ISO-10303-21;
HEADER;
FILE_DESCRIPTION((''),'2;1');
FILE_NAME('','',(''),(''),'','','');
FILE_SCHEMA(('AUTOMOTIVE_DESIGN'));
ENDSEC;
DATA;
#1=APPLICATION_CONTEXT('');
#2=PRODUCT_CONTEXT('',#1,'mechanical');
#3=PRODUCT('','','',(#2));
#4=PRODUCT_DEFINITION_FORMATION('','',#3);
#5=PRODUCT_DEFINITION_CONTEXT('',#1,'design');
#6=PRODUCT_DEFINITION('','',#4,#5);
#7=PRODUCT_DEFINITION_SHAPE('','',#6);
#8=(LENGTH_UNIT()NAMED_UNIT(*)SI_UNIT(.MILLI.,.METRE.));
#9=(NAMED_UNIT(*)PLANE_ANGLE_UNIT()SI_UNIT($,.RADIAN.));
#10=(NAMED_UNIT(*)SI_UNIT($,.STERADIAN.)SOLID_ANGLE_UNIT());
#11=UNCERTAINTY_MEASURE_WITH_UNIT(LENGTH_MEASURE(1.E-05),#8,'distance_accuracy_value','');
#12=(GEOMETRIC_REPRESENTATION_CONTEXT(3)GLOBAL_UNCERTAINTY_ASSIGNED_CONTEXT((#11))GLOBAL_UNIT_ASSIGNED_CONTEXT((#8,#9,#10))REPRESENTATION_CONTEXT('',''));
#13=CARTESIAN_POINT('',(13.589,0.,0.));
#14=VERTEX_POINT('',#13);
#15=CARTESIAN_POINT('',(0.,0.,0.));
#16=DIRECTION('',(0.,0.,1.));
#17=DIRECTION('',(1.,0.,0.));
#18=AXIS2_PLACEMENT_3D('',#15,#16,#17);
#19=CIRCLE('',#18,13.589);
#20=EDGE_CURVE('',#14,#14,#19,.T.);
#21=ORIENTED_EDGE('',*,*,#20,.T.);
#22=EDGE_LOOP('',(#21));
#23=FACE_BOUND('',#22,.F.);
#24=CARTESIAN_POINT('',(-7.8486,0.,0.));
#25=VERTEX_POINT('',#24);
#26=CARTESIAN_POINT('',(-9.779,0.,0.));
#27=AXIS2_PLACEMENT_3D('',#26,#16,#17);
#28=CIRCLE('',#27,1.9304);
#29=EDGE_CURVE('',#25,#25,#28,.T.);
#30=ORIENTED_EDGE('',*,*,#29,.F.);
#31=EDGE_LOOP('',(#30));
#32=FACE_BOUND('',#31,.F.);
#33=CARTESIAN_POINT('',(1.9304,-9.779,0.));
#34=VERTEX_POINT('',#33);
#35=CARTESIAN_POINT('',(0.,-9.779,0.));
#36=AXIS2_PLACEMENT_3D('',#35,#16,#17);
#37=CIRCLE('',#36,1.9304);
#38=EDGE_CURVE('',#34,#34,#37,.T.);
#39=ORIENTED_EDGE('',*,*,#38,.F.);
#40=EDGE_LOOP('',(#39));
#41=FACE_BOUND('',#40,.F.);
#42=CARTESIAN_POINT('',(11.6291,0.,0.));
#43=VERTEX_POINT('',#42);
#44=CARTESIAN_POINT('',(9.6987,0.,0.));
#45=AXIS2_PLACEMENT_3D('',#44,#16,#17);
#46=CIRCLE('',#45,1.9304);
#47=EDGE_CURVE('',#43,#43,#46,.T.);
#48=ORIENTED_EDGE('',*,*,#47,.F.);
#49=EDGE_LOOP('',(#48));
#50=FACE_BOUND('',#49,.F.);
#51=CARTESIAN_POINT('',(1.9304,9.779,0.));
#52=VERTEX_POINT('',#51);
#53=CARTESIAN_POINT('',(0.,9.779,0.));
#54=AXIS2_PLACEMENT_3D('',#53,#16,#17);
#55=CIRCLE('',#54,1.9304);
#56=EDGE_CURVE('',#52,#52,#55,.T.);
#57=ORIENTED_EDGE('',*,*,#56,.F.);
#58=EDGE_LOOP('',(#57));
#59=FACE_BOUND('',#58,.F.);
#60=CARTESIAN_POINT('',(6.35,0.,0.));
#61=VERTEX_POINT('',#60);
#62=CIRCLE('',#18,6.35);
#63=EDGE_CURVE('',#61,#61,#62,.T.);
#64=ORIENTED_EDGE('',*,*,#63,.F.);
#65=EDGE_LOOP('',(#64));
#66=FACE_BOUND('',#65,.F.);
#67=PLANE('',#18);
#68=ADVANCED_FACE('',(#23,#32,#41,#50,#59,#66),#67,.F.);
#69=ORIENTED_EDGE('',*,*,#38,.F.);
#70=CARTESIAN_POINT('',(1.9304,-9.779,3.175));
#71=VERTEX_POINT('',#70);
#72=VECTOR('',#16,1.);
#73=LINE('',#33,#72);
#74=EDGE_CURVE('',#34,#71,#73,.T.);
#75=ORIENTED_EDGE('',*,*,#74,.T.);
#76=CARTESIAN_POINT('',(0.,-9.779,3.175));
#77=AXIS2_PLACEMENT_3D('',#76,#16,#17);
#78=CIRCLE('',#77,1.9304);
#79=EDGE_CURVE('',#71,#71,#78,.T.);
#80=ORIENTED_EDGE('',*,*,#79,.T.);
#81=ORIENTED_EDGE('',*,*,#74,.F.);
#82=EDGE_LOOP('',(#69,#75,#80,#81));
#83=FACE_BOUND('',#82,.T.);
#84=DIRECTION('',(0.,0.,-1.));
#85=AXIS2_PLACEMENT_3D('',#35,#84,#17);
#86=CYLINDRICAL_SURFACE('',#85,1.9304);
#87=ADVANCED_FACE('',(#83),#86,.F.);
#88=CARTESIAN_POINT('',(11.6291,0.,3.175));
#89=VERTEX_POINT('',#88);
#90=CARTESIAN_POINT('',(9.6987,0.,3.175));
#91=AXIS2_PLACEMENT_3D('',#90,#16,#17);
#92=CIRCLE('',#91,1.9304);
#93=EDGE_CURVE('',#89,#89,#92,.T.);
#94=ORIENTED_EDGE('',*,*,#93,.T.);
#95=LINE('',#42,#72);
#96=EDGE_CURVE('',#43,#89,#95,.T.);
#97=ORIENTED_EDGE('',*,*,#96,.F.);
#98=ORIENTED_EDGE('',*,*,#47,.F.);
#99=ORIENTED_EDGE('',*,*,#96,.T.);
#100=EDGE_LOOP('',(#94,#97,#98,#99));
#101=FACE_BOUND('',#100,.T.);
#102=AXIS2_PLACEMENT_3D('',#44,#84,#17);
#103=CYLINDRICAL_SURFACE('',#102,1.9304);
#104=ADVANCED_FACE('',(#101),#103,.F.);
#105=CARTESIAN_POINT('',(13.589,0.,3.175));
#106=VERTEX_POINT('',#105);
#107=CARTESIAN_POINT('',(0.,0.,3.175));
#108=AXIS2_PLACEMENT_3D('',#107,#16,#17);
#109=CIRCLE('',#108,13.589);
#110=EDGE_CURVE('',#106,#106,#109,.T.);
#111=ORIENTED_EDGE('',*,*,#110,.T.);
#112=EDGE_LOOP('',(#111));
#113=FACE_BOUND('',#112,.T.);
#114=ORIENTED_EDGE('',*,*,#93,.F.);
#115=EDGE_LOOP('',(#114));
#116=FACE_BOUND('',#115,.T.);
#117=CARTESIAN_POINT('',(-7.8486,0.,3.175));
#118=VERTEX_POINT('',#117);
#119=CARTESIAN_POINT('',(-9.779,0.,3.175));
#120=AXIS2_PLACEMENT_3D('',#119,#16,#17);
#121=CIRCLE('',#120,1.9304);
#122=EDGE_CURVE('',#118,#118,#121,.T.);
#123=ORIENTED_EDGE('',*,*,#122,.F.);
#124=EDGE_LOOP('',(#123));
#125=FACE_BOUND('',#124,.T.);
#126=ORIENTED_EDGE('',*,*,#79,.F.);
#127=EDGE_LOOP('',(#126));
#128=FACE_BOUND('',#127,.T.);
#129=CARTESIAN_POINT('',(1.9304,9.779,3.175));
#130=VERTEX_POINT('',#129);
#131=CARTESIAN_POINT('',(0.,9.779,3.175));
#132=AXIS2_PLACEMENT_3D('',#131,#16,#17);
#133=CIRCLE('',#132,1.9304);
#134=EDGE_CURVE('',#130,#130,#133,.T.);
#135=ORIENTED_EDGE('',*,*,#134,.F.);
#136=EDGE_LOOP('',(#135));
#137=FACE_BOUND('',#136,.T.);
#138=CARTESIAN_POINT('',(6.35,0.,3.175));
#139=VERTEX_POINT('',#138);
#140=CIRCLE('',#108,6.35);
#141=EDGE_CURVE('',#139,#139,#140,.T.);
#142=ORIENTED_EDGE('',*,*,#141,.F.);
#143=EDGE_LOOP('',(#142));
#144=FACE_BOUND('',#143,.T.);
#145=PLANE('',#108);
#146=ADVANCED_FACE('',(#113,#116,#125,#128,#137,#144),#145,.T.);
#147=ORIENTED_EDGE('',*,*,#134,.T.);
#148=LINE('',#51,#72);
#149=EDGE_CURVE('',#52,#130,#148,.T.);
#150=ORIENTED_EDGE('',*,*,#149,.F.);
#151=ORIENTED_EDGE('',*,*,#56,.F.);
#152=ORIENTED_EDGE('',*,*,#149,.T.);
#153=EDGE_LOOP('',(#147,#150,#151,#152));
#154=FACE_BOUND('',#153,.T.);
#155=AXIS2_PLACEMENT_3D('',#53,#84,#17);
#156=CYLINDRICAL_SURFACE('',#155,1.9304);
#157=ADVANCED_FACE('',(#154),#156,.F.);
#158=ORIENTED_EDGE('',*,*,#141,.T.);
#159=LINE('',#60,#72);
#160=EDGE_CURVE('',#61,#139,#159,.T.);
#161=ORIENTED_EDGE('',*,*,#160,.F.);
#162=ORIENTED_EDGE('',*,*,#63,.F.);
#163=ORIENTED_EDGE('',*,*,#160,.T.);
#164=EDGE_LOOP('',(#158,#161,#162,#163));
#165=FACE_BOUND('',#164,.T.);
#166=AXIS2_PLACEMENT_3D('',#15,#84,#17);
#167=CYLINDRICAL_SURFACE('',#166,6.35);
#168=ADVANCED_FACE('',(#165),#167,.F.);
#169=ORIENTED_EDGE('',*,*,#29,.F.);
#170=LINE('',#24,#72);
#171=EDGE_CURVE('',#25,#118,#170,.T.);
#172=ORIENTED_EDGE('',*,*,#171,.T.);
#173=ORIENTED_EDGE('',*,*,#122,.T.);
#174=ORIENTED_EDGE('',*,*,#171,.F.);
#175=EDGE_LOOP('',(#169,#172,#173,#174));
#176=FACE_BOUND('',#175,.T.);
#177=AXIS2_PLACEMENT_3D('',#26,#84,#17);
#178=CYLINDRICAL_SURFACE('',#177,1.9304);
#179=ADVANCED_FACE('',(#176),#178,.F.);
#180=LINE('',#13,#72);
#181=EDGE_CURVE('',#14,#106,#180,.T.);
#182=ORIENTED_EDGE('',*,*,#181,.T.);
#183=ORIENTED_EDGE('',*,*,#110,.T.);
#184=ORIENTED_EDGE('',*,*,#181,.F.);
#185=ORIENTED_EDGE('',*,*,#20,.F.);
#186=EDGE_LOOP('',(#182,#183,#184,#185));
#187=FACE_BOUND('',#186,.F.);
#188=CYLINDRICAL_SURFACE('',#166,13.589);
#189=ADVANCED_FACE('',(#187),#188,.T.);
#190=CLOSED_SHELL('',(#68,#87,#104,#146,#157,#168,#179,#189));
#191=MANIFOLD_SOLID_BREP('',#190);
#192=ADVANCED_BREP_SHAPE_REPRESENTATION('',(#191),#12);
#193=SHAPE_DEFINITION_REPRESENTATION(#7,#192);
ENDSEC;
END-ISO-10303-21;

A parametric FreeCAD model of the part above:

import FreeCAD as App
import Part
import Sketcher
Q = App.Units.Quantity

doc = App.newDocument("Part")
body = doc.addObject("PartDesign::Body", "Body")

sketch1 = body.newObject("Sketcher::SketchObject", "Sketch")
sketch1.AttachmentSupport = (doc.getObject("XY_Plane"), [""])
sketch1.MapMode = "FlatFace"
sketch1.addGeometry(Part.Circle(App.Vector(0, 0, 0), App.Vector(0, 0, 1), 13.6), False)
sketch1.addGeometry(Part.Circle(App.Vector(0, -9.8, 0), App.Vector(0, 0, 1), 1.9), False)
sketch1.addGeometry(Part.Circle(App.Vector(-9.8, 0, 0), App.Vector(0, 0, 1), 1.9), False)
sketch1.addGeometry(Part.Circle(App.Vector(0, 0, 0), App.Vector(0, 0, 1), 6.3), False)
sketch1.addGeometry(Part.Circle(App.Vector(9.7, 0, 0), App.Vector(0, 0, 1), 1.9), False)
sketch1.addGeometry(Part.Circle(App.Vector(0, 9.8, 0), App.Vector(0, 0, 1), 1.9), False)
sketch1.addConstraint(Sketcher.Constraint("Coincident", 0, 3, -1, 1))
sketch1.addConstraint(Sketcher.Constraint("Coincident", 3, 3, -1, 1))
sketch1.addConstraint(Sketcher.Constraint("Equal", 1, 2))
sketch1.addConstraint(Sketcher.Constraint("Equal", 2, 4))
sketch1.addConstraint(Sketcher.Constraint("Equal", 4, 5))
sketch1.addConstraint(Sketcher.Constraint("Symmetric", 1, 3, 5, 3, -1, 1))
sketch1.addConstraint(Sketcher.Constraint("PointOnObject", 1, 3, -2))
sketch1.addConstraint(Sketcher.Constraint("PointOnObject", 2, 3, -1))
sketch1.addConstraint(Sketcher.Constraint("PointOnObject", 4, 3, -1))
sketch1.addConstraint(Sketcher.Constraint("Diameter", 3, Q("0.5 in")))
sketch1.addConstraint(Sketcher.Constraint("Diameter", 0, Q("1.07 in")))
sketch1.addConstraint(Sketcher.Constraint("Diameter", 1, Q("0.152 in")))
sketch1.addConstraint(Sketcher.Constraint("DistanceY", 1, 3, 5, 3, Q("0.77 in")))
sketch1.addConstraint(Sketcher.Constraint("DistanceX", 2, 3, -1, 1, Q("0.385 in")))
sketch1.addConstraint(Sketcher.Constraint("DistanceX", -1, 1, 4, 3, Q("9.6987 mm")))
pad1 = body.newObject("PartDesign::Pad", "Pad")
pad1.Profile = sketch1
pad1.Length = Q("0.125 in")

doc.recompute()
